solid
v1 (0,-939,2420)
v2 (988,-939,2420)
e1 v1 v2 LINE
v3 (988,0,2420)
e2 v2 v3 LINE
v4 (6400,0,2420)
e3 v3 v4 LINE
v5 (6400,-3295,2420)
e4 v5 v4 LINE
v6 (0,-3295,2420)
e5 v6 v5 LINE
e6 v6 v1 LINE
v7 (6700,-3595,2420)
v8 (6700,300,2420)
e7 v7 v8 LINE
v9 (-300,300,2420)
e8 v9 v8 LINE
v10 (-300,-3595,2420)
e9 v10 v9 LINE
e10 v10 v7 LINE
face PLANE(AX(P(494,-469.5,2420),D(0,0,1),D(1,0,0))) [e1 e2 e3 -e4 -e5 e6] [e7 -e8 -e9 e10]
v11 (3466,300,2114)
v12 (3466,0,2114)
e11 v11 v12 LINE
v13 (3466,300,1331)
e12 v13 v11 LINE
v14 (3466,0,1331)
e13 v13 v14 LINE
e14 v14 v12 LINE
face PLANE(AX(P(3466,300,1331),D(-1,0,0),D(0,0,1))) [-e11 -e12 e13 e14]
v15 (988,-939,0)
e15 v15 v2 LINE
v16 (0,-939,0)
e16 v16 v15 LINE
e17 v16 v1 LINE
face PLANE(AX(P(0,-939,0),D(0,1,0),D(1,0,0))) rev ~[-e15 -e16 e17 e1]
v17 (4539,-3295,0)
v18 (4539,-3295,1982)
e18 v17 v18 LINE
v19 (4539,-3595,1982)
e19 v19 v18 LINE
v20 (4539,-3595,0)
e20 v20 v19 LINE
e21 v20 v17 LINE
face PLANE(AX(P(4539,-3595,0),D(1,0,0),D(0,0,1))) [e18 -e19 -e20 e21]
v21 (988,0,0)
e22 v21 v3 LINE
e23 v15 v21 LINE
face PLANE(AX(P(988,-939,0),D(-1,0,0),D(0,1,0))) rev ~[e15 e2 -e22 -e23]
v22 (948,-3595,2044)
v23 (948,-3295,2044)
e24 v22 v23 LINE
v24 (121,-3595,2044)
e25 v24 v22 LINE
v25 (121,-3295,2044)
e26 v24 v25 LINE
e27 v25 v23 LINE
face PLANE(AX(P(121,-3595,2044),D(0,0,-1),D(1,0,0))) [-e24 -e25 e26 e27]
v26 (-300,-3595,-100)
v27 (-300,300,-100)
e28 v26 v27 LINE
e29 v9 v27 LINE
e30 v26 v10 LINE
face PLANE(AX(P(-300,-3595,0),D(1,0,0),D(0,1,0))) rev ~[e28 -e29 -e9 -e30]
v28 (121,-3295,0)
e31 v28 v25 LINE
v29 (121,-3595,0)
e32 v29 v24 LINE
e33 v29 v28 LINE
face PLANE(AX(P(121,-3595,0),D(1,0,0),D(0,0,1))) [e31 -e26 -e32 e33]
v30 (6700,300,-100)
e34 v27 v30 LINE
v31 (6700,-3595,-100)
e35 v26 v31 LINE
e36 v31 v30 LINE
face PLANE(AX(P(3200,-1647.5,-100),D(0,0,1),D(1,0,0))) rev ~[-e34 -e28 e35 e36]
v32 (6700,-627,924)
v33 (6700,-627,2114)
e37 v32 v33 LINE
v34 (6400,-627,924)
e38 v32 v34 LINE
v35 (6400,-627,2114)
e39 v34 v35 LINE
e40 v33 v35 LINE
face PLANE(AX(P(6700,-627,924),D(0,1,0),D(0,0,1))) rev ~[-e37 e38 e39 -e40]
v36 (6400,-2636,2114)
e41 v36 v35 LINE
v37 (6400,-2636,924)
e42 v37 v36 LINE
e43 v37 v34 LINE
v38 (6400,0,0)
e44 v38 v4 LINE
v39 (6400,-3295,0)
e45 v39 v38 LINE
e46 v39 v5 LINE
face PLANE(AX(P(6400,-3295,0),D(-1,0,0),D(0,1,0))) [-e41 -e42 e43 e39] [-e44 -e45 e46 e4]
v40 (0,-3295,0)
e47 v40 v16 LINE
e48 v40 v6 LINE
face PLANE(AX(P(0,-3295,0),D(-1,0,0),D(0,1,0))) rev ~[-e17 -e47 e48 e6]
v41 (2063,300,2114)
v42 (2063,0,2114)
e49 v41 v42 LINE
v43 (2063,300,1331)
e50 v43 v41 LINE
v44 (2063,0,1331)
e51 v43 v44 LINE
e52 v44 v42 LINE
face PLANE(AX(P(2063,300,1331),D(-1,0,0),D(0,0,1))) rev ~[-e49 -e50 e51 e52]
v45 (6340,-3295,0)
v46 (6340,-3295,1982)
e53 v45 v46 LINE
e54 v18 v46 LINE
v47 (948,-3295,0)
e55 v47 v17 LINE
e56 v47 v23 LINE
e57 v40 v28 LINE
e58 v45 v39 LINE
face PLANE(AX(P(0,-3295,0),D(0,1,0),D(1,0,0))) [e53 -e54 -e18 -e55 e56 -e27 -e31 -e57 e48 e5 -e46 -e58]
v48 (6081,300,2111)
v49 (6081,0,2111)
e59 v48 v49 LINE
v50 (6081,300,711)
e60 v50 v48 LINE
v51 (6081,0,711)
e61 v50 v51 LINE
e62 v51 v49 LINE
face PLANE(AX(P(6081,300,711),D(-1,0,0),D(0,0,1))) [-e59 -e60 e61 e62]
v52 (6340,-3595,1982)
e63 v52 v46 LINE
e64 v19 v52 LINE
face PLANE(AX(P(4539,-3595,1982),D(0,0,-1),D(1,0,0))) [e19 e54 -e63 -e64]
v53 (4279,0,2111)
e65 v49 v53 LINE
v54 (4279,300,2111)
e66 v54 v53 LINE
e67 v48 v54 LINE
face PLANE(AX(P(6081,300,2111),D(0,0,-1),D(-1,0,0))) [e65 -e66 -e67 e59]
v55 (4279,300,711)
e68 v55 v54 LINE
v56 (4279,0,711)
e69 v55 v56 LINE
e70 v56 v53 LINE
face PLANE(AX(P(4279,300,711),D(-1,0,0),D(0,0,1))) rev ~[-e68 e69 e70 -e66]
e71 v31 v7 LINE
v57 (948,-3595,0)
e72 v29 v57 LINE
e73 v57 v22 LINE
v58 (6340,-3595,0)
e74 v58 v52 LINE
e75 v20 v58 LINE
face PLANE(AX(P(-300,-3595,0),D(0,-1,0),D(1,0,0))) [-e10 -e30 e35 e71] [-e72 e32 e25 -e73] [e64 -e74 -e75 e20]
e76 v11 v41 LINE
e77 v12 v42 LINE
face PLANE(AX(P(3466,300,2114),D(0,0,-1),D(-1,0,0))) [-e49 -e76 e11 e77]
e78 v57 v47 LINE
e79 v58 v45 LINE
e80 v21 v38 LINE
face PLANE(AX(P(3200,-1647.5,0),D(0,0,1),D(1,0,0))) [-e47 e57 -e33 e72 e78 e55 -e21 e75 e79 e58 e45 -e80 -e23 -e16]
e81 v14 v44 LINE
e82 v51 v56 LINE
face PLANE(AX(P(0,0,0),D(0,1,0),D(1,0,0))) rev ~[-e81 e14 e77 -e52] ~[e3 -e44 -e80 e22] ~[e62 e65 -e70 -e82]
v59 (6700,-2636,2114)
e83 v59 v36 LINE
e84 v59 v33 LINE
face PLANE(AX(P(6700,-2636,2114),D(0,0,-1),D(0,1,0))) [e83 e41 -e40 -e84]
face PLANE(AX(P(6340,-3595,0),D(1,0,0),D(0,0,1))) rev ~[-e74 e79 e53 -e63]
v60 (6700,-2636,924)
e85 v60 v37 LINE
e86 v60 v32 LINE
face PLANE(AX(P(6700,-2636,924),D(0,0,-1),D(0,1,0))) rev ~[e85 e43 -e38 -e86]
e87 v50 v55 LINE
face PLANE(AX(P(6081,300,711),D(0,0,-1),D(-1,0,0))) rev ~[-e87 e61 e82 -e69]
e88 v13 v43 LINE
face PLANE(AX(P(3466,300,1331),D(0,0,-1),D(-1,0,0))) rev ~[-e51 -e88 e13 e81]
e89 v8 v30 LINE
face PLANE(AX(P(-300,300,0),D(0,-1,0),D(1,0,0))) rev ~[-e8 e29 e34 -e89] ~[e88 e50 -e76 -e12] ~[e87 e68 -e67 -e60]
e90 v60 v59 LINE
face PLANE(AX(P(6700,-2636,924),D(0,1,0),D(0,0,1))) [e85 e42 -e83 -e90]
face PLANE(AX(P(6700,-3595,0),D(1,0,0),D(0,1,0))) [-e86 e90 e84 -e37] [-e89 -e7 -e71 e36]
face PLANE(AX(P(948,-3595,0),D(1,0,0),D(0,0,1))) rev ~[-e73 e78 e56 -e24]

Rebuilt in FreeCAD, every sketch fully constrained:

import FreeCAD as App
import Part
import Sketcher


def add_polygon(sketch, points):
    """Adds a closed chain of lines whose ends are joined by coincident constraints."""
    first, n = sketch.GeometryCount, len(points)
    for a, b in zip(points, points[1:] + points[:1]):
        sketch.addGeometry(Part.LineSegment(App.Vector(*a, 0), App.Vector(*b, 0)), False)
    for i in range(n):
        sketch.addConstraint(Sketcher.Constraint("Coincident", first + i, 2, first + (i + 1) % n, 1))

doc = App.newDocument("Part")
body = doc.addObject("PartDesign::Body", "Body")

sketch1 = doc.addObject("Sketcher::SketchObject", "Sketch")
body.addObject(sketch1)
sketch1.AttachmentSupport = (doc.XY_Plane, [""])
sketch1.MapMode = "FlatFace"
add_polygon(sketch1, [(-300, 300), (-300, -3595), (6700, -3595), (6700, 300)])
add_polygon(sketch1, [(6400, -3295), (0, -3295), (0, 0), (6400, 0)])
sketch1.addConstraint([
    Sketcher.Constraint("Vertical", 0),
    Sketcher.Constraint("Horizontal", 1),
    Sketcher.Constraint("Vertical", 2),
    Sketcher.Constraint("Horizontal", 3),
    Sketcher.Constraint("Horizontal", 4),
    Sketcher.Constraint("Vertical", 5),
    Sketcher.Constraint("Horizontal", 6),
    Sketcher.Constraint("Vertical", 7),
    Sketcher.Constraint("Coincident", 5, 2, -1, 1),
    Sketcher.Constraint("DistanceX", 1, 1, 1, 2, 7000.0),
    Sketcher.Constraint("DistanceX", 4, 2, 4, 1, 6400.0),
    Sketcher.Constraint("DistanceY", 0, 2, 0, 1, 3895.0),
    Sketcher.Constraint("DistanceY", 5, 1, 5, 2, 3295.0),
    Sketcher.Constraint("DistanceX", 0, 2, -1, 1, 300.0),
    Sketcher.Constraint("DistanceY", 0, 2, -1, 1, 3595.0),
])
pad1 = doc.addObject("PartDesign::Pad", "Pad")
body.addObject(pad1)
pad1.Profile = sketch1
pad1.Length = 2420

sketch2 = doc.addObject("Sketcher::SketchObject", "Sketch001")
body.addObject(sketch2)
sketch2.AttachmentSupport = (doc.XZ_Plane, [""])
sketch2.MapMode = "FlatFace"
sketch2.AttachmentOffset = App.Placement(App.Vector(0, 0, 3595), App.Rotation())
add_polygon(sketch2, [(4539, 1982), (4539, 0), (6340, 0), (6340, 1982)])
sketch2.addConstraint([
    Sketcher.Constraint("Vertical", 0),
    Sketcher.Constraint("Horizontal", 1),
    Sketcher.Constraint("Vertical", 2),
    Sketcher.Constraint("Horizontal", 3),
    Sketcher.Constraint("PointOnObject", 0, 2, -1),
    Sketcher.Constraint("DistanceX", 1, 1, 1, 2, 1801.0),
    Sketcher.Constraint("DistanceY", 0, 2, 0, 1, 1982.0),
    Sketcher.Constraint("DistanceX", -1, 1, 0, 2, 4539.0),
])
pocket1 = doc.addObject("PartDesign::Pocket", "Pocket")
body.addObject(pocket1)
pocket1.Profile = sketch2
pocket1.Length = 300

sketch3 = doc.addObject("Sketcher::SketchObject", "Sketch002")
body.addObject(sketch3)
sketch3.AttachmentSupport = (doc.XZ_Plane, [""])
sketch3.MapMode = "FlatFace"
sketch3.AttachmentOffset = App.Placement(App.Vector(0, 0, 3595), App.Rotation())
add_polygon(sketch3, [(121, 2044), (121, 0), (948, 0), (948, 2044)])
sketch3.addConstraint([
    Sketcher.Constraint("Vertical", 0),
    Sketcher.Constraint("Horizontal", 1),
    Sketcher.Constraint("Vertical", 2),
    Sketcher.Constraint("Horizontal", 3),
    Sketcher.Constraint("PointOnObject", 0, 2, -1),
    Sketcher.Constraint("DistanceX", 1, 1, 1, 2, 827.0),
    Sketcher.Constraint("DistanceY", 0, 2, 0, 1, 2044.0),
    Sketcher.Constraint("DistanceX", -1, 1, 0, 2, 121.0),
])
pocket2 = doc.addObject("PartDesign::Pocket", "Pocket001")
body.addObject(pocket2)
pocket2.Profile = sketch3
pocket2.Length = 300

sketch4 = doc.addObject("Sketcher::SketchObject", "Sketch003")
body.addObject(sketch4)
sketch4.AttachmentSupport = (doc.YZ_Plane, [""])
sketch4.MapMode = "FlatFace"
sketch4.AttachmentOffset = App.Placement(App.Vector(0, 0, 6700), App.Rotation())
add_polygon(sketch4, [(-2636, 2114), (-2636, 924), (-627, 924), (-627, 2114)])
sketch4.addConstraint([
    Sketcher.Constraint("Vertical", 0),
    Sketcher.Constraint("Horizontal", 1),
    Sketcher.Constraint("Vertical", 2),
    Sketcher.Constraint("Horizontal", 3),
    Sketcher.Constraint("DistanceX", 1, 1, 1, 2, 2009.0),
    Sketcher.Constraint("DistanceY", 0, 2, 0, 1, 1190.0),
    Sketcher.Constraint("DistanceX", 0, 2, -1, 1, 2636.0),
    Sketcher.Constraint("DistanceY", -1, 1, 0, 2, 924.0),
])
pocket3 = doc.addObject("PartDesign::Pocket", "Pocket002")
body.addObject(pocket3)
pocket3.Profile = sketch4
pocket3.Length = 300

sketch5 = doc.addObject("Sketcher::SketchObject", "Sketch004")
body.addObject(sketch5)
sketch5.AttachmentSupport = (doc.XZ_Plane, [""])
sketch5.MapMode = "FlatFace"
sketch5.AttachmentOffset = App.Placement(App.Vector(0, 0, -300), App.Rotation())
add_polygon(sketch5, [(6081, 2111), (6081, 711), (4279, 711), (4279, 2111)])
sketch5.addConstraint([
    Sketcher.Constraint("Vertical", 0),
    Sketcher.Constraint("Horizontal", 1),
    Sketcher.Constraint("Vertical", 2),
    Sketcher.Constraint("Horizontal", 3),
    Sketcher.Constraint("DistanceX", 1, 2, 1, 1, 1802.0),
    Sketcher.Constraint("DistanceY", 0, 2, 0, 1, 1400.0),
    Sketcher.Constraint("DistanceX", -1, 1, 0, 2, 6081.0),
    Sketcher.Constraint("DistanceY", -1, 1, 0, 2, 711.0),
])
pocket4 = doc.addObject("PartDesign::Pocket", "Pocket003")
body.addObject(pocket4)
pocket4.Profile = sketch5
pocket4.Length = 300
pocket4.Reversed = True

sketch6 = doc.addObject("Sketcher::SketchObject", "Sketch005")
body.addObject(sketch6)
sketch6.AttachmentSupport = (doc.XY_Plane, [""])
sketch6.MapMode = "FlatFace"
add_polygon(sketch6, [(0, 0), (0, -939), (988, -939), (988, 0)])
sketch6.addConstraint([
    Sketcher.Constraint("Vertical", 0),
    Sketcher.Constraint("Horizontal", 1),
    Sketcher.Constraint("Vertical", 2),
    Sketcher.Constraint("Horizontal", 3),
    Sketcher.Constraint("Coincident", 3, 2, -1, 1),
    Sketcher.Constraint("DistanceX", 1, 1, 1, 2, 988.0),
    Sketcher.Constraint("DistanceY", 0, 2, 0, 1, 939.0),
])
pad2 = doc.addObject("PartDesign::Pad", "Pad001")
body.addObject(pad2)
pad2.Profile = sketch6
pad2.Length = 2420

sketch7 = doc.addObject("Sketcher::SketchObject", "Sketch006")
body.addObject(sketch7)
sketch7.AttachmentSupport = (doc.XZ_Plane, [""])
sketch7.MapMode = "FlatFace"
sketch7.AttachmentOffset = App.Placement(App.Vector(0, 0, -300), App.Rotation())
add_polygon(sketch7, [(3466, 2114), (3466, 1331), (2063, 1331), (2063, 2114)])
sketch7.addConstraint([
    Sketcher.Constraint("Vertical", 0),
    Sketcher.Constraint("Horizontal", 1),
    Sketcher.Constraint("Vertical", 2),
    Sketcher.Constraint("Horizontal", 3),
    Sketcher.Constraint("DistanceX", 1, 2, 1, 1, 1403.0),
    Sketcher.Constraint("DistanceY", 0, 2, 0, 1, 783.0),
    Sketcher.Constraint("DistanceX", -1, 1, 0, 2, 3466.0),
    Sketcher.Constraint("DistanceY", -1, 1, 0, 2, 1331.0),
])
pocket5 = doc.addObject("PartDesign::Pocket", "Pocket004")
body.addObject(pocket5)
pocket5.Profile = sketch7
pocket5.Length = 300
pocket5.Reversed = True

sketch8 = doc.addObject("Sketcher::SketchObject", "Sketch007")
body.addObject(sketch8)
sketch8.AttachmentSupport = (doc.XY_Plane, [""])
sketch8.MapMode = "FlatFace"
add_polygon(sketch8, [(-300, 300), (-300, -3595), (6700, -3595), (6700, 300)])
sketch8.addConstraint([
    Sketcher.Constraint("Vertical", 0),
    Sketcher.Constraint("Horizontal", 1),
    Sketcher.Constraint("Vertical", 2),
    Sketcher.Constraint("Horizontal", 3),
    Sketcher.Constraint("DistanceX", 1, 1, 1, 2, 7000.0),
    Sketcher.Constraint("DistanceY", 0, 2, 0, 1, 3895.0),
    Sketcher.Constraint("DistanceX", 0, 2, -1, 1, 300.0),
    Sketcher.Constraint("DistanceY", 0, 2, -1, 1, 3595.0),
])
pad3 = doc.addObject("PartDesign::Pad", "Pad002")
body.addObject(pad3)
pad3.Profile = sketch8
pad3.Length = 100
pad3.Reversed = True

doc.recompute()
